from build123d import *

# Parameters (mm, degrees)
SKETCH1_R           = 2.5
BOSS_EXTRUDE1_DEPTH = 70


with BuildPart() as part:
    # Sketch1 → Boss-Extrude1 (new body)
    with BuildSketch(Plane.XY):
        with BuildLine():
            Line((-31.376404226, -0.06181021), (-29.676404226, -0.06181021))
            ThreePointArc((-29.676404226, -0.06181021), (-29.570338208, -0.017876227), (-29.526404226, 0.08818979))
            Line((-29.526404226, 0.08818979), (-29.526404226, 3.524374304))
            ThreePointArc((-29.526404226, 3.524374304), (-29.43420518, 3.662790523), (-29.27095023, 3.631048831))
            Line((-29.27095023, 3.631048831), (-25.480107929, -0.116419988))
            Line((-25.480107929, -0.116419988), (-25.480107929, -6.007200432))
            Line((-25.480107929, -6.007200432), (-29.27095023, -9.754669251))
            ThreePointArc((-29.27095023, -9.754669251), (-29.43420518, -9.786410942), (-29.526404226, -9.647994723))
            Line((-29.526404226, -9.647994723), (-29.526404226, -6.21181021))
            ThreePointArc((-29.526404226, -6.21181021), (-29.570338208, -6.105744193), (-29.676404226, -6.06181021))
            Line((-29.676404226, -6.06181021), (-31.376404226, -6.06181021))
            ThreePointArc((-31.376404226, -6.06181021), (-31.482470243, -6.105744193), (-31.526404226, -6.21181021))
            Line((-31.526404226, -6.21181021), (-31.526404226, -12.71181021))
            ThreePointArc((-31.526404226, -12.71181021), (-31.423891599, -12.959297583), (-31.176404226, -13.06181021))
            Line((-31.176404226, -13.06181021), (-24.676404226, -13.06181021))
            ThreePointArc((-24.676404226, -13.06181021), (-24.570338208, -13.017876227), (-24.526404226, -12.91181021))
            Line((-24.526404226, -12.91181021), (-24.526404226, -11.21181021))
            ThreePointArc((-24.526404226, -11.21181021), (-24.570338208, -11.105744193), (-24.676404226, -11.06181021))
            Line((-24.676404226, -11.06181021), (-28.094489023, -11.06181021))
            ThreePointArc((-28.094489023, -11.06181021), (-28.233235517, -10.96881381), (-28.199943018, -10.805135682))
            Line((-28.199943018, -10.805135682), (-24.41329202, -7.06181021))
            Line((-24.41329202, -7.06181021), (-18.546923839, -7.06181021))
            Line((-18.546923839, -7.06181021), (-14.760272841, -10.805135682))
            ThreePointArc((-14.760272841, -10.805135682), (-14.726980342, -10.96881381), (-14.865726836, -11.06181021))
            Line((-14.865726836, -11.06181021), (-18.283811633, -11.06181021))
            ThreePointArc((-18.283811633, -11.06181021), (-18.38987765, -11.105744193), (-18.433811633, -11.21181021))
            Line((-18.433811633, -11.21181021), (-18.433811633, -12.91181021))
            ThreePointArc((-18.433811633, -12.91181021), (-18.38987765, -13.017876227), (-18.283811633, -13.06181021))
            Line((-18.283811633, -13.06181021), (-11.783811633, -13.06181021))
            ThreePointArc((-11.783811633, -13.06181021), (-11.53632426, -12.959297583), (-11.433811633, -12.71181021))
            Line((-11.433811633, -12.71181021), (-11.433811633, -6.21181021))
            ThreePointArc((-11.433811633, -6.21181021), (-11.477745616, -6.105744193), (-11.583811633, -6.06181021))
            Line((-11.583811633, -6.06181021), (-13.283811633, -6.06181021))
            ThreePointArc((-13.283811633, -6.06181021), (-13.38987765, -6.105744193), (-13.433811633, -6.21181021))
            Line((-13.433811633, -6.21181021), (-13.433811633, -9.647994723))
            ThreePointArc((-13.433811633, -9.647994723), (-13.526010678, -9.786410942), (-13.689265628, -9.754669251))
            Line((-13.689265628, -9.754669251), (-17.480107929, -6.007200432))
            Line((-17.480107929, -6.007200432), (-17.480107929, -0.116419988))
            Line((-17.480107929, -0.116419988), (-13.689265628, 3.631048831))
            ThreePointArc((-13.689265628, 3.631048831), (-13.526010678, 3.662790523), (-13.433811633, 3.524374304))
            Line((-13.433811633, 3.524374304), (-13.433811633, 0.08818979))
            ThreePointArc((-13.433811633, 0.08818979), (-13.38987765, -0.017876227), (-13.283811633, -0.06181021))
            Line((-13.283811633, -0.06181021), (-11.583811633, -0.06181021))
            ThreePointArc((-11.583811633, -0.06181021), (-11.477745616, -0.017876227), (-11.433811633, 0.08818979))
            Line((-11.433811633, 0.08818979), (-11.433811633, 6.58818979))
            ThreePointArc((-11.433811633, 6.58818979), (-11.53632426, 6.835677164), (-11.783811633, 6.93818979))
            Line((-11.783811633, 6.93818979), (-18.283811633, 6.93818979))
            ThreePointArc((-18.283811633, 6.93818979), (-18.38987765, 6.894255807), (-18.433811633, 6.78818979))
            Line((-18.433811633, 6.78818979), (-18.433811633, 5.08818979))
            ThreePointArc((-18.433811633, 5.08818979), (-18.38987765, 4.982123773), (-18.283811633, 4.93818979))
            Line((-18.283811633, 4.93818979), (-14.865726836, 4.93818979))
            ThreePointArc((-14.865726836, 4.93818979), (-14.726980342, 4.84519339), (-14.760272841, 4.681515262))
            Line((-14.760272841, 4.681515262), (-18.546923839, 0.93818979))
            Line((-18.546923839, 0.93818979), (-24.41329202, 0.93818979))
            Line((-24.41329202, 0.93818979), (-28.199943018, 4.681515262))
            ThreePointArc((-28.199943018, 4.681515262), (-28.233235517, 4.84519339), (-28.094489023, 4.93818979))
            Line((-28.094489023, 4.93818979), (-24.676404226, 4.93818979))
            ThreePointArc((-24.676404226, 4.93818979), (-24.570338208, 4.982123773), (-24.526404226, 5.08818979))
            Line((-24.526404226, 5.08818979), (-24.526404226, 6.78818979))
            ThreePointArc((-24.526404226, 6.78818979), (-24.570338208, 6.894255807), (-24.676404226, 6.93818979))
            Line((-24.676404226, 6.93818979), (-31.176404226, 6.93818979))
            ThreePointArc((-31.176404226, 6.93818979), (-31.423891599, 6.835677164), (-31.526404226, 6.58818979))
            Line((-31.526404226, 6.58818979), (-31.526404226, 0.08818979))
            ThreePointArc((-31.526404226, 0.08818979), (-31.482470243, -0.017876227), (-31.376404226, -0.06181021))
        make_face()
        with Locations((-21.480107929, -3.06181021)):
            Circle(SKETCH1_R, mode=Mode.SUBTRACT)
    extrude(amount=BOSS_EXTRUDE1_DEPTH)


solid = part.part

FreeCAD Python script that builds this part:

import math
import FreeCAD as App
import Part
import Sketcher

doc = App.newDocument("Part")
body = doc.addObject("PartDesign::Body", "Body")

# Sketch on XY plane
sketch1 = doc.addObject("Sketcher::SketchObject", "Sketch")
body.addObject(sketch1)
sketch1.AttachmentSupport = (doc.XY_Plane, [""])
sketch1.MapMode = "FlatFace"
sketch1.addGeometry(Part.LineSegment(App.Vector(-31.38, -0.06, 0), App.Vector(-29.68, -0.06, 0)), False)
sketch1.addGeometry(Part.ArcOfCircle(Part.Circle(App.Vector(-29.68, 0.09, 0), App.Vector(0, 0, 1), 0.15), math.radians(-90), math.radians(0)), False)
sketch1.addGeometry(Part.LineSegment(App.Vector(-29.53, 0.09, 0), App.Vector(-29.53, 3.52, 0)), False)
sketch1.addGeometry(Part.ArcOfCircle(Part.Circle(App.Vector(-29.38, 3.52, 0), App.Vector(0, 0, 1), 0.15), math.radians(45), math.radians(180)), False)
sketch1.addGeometry(Part.LineSegment(App.Vector(-29.27, 3.63, 0), App.Vector(-25.48, -0.12, 0)), False)
sketch1.addGeometry(Part.LineSegment(App.Vector(-25.48, -0.12, 0), App.Vector(-25.48, -6.01, 0)), False)
sketch1.addGeometry(Part.LineSegment(App.Vector(-25.48, -6.01, 0), App.Vector(-29.27, -9.75, 0)), False)
sketch1.addGeometry(Part.ArcOfCircle(Part.Circle(App.Vector(-29.38, -9.65, 0), App.Vector(0, 0, 1), 0.15), math.radians(-180), math.radians(-45)), False)
sketch1.addGeometry(Part.LineSegment(App.Vector(-29.53, -9.65, 0), App.Vector(-29.53, -6.21, 0)), False)
sketch1.addGeometry(Part.ArcOfCircle(Part.Circle(App.Vector(-29.68, -6.21, 0), App.Vector(0, 0, 1), 0.15), math.radians(0), math.radians(90)), False)
sketch1.addGeometry(Part.LineSegment(App.Vector(-29.68, -6.06, 0), App.Vector(-31.38, -6.06, 0)), False)
sketch1.addGeometry(Part.ArcOfCircle(Part.Circle(App.Vector(-31.38, -6.21, 0), App.Vector(0, 0, 1), 0.15), math.radians(90), math.radians(180)), False)
sketch1.addGeometry(Part.LineSegment(App.Vector(-31.53, -6.21, 0), App.Vector(-31.53, -12.71, 0)), False)
sketch1.addGeometry(Part.ArcOfCircle(Part.Circle(App.Vector(-31.18, -12.71, 0), App.Vector(0, 0, 1), 0.35), math.radians(-180), math.radians(-90)), False)
sketch1.addGeometry(Part.LineSegment(App.Vector(-31.18, -13.06, 0), App.Vector(-24.68, -13.06, 0)), False)
sketch1.addGeometry(Part.ArcOfCircle(Part.Circle(App.Vector(-24.68, -12.91, 0), App.Vector(0, 0, 1), 0.15), math.radians(-90), math.radians(0)), False)
sketch1.addGeometry(Part.LineSegment(App.Vector(-24.53, -12.91, 0), App.Vector(-24.53, -11.21, 0)), False)
sketch1.addGeometry(Part.ArcOfCircle(Part.Circle(App.Vector(-24.68, -11.21, 0), App.Vector(0, 0, 1), 0.15), math.radians(0), math.radians(90)), False)
sketch1.addGeometry(Part.LineSegment(App.Vector(-24.68, -11.06, 0), App.Vector(-28.09, -11.06, 0)), False)
sketch1.addGeometry(Part.ArcOfCircle(Part.Circle(App.Vector(-28.09, -10.91, 0), App.Vector(0, 0, 1), 0.15), math.radians(135), math.radians(270)), False)
sketch1.addGeometry(Part.LineSegment(App.Vector(-28.2, -10.81, 0), App.Vector(-24.41, -7.06, 0)), False)
sketch1.addGeometry(Part.LineSegment(App.Vector(-24.41, -7.06, 0), App.Vector(-18.55, -7.06, 0)), False)
sketch1.addGeometry(Part.LineSegment(App.Vector(-18.55, -7.06, 0), App.Vector(-14.76, -10.81, 0)), False)
sketch1.addGeometry(Part.ArcOfCircle(Part.Circle(App.Vector(-14.87, -10.91, 0), App.Vector(0, 0, 1), 0.15), math.radians(-90), math.radians(45)), False)
sketch1.addGeometry(Part.LineSegment(App.Vector(-14.87, -11.06, 0), App.Vector(-18.28, -11.06, 0)), False)
sketch1.addGeometry(Part.ArcOfCircle(Part.Circle(App.Vector(-18.28, -11.21, 0), App.Vector(0, 0, 1), 0.15), math.radians(90), math.radians(180)), False)
sketch1.addGeometry(Part.LineSegment(App.Vector(-18.43, -11.21, 0), App.Vector(-18.43, -12.91, 0)), False)
sketch1.addGeometry(Part.ArcOfCircle(Part.Circle(App.Vector(-18.28, -12.91, 0), App.Vector(0, 0, 1), 0.15), math.radians(-180), math.radians(-90)), False)
sketch1.addGeometry(Part.LineSegment(App.Vector(-18.28, -13.06, 0), App.Vector(-11.78, -13.06, 0)), False)
sketch1.addGeometry(Part.ArcOfCircle(Part.Circle(App.Vector(-11.78, -12.71, 0), App.Vector(0, 0, 1), 0.35), math.radians(-90), math.radians(0)), False)
sketch1.addGeometry(Part.LineSegment(App.Vector(-11.43, -12.71, 0), App.Vector(-11.43, -6.21, 0)), False)
sketch1.addGeometry(Part.ArcOfCircle(Part.Circle(App.Vector(-11.58, -6.21, 0), App.Vector(0, 0, 1), 0.15), math.radians(0), math.radians(90)), False)
sketch1.addGeometry(Part.LineSegment(App.Vector(-11.58, -6.06, 0), App.Vector(-13.28, -6.06, 0)), False)
sketch1.addGeometry(Part.ArcOfCircle(Part.Circle(App.Vector(-13.28, -6.21, 0), App.Vector(0, 0, 1), 0.15), math.radians(90), math.radians(180)), False)
sketch1.addGeometry(Part.LineSegment(App.Vector(-13.43, -6.21, 0), App.Vector(-13.43, -9.65, 0)), False)
sketch1.addGeometry(Part.ArcOfCircle(Part.Circle(App.Vector(-13.58, -9.65, 0), App.Vector(0, 0, 1), 0.15), math.radians(-135), math.radians(0)), False)
sketch1.addGeometry(Part.LineSegment(App.Vector(-13.69, -9.75, 0), App.Vector(-17.48, -6.01, 0)), False)
sketch1.addGeometry(Part.LineSegment(App.Vector(-17.48, -6.01, 0), App.Vector(-17.48, -0.12, 0)), False)
sketch1.addGeometry(Part.LineSegment(App.Vector(-17.48, -0.12, 0), App.Vector(-13.69, 3.63, 0)), False)
sketch1.addGeometry(Part.ArcOfCircle(Part.Circle(App.Vector(-13.58, 3.52, 0), App.Vector(0, 0, 1), 0.15), math.radians(0), math.radians(135)), False)
sketch1.addGeometry(Part.LineSegment(App.Vector(-13.43, 3.52, 0), App.Vector(-13.43, 0.09, 0)), False)
sketch1.addGeometry(Part.ArcOfCircle(Part.Circle(App.Vector(-13.28, 0.09, 0), App.Vector(0, 0, 1), 0.15), math.radians(-180), math.radians(-90)), False)
sketch1.addGeometry(Part.LineSegment(App.Vector(-13.28, -0.06, 0), App.Vector(-11.58, -0.06, 0)), False)
sketch1.addGeometry(Part.ArcOfCircle(Part.Circle(App.Vector(-11.58, 0.09, 0), App.Vector(0, 0, 1), 0.15), math.radians(-90), math.radians(0)), False)
sketch1.addGeometry(Part.LineSegment(App.Vector(-11.43, 0.09, 0), App.Vector(-11.43, 6.59, 0)), False)
sketch1.addGeometry(Part.ArcOfCircle(Part.Circle(App.Vector(-11.78, 6.59, 0), App.Vector(0, 0, 1), 0.35), math.radians(0), math.radians(90)), False)
sketch1.addGeometry(Part.LineSegment(App.Vector(-11.78, 6.94, 0), App.Vector(-18.28, 6.94, 0)), False)
sketch1.addGeometry(Part.ArcOfCircle(Part.Circle(App.Vector(-18.28, 6.79, 0), App.Vector(0, 0, 1), 0.15), math.radians(90), math.radians(180)), False)
sketch1.addGeometry(Part.LineSegment(App.Vector(-18.43, 6.79, 0), App.Vector(-18.43, 5.09, 0)), False)
sketch1.addGeometry(Part.ArcOfCircle(Part.Circle(App.Vector(-18.28, 5.09, 0), App.Vector(0, 0, 1), 0.15), math.radians(-180), math.radians(-90)), False)
sketch1.addGeometry(Part.LineSegment(App.Vector(-18.28, 4.94, 0), App.Vector(-14.87, 4.94, 0)), False)
sketch1.addGeometry(Part.ArcOfCircle(Part.Circle(App.Vector(-14.87, 4.79, 0), App.Vector(0, 0, 1), 0.15), math.radians(-45), math.radians(90)), False)
sketch1.addGeometry(Part.LineSegment(App.Vector(-14.76, 4.68, 0), App.Vector(-18.55, 0.94, 0)), False)
sketch1.addGeometry(Part.LineSegment(App.Vector(-18.55, 0.94, 0), App.Vector(-24.41, 0.94, 0)), False)
sketch1.addGeometry(Part.LineSegment(App.Vector(-24.41, 0.94, 0), App.Vector(-28.2, 4.68, 0)), False)
sketch1.addGeometry(Part.ArcOfCircle(Part.Circle(App.Vector(-28.09, 4.79, 0), App.Vector(0, 0, 1), 0.15), math.radians(90), math.radians(225)), False)
sketch1.addGeometry(Part.LineSegment(App.Vector(-28.09, 4.94, 0), App.Vector(-24.68, 4.94, 0)), False)
sketch1.addGeometry(Part.ArcOfCircle(Part.Circle(App.Vector(-24.68, 5.09, 0), App.Vector(0, 0, 1), 0.15), math.radians(-90), math.radians(0)), False)
sketch1.addGeometry(Part.LineSegment(App.Vector(-24.53, 5.09, 0), App.Vector(-24.53, 6.79, 0)), False)
sketch1.addGeometry(Part.ArcOfCircle(Part.Circle(App.Vector(-24.68, 6.79, 0), App.Vector(0, 0, 1), 0.15), math.radians(0), math.radians(90)), False)
sketch1.addGeometry(Part.LineSegment(App.Vector(-24.68, 6.94, 0), App.Vector(-31.18, 6.94, 0)), False)
sketch1.addGeometry(Part.ArcOfCircle(Part.Circle(App.Vector(-31.18, 6.59, 0), App.Vector(0, 0, 1), 0.35), math.radians(90), math.radians(180)), False)
sketch1.addGeometry(Part.LineSegment(App.Vector(-31.53, 6.59, 0), App.Vector(-31.53, 0.09, 0)), False)
sketch1.addGeometry(Part.ArcOfCircle(Part.Circle(App.Vector(-31.38, 0.09, 0), App.Vector(0, 0, 1), 0.15), math.radians(-180), math.radians(-90)), False)
sketch1.addGeometry(Part.Circle(App.Vector(-21.48, -3.06, 0), App.Vector(0, 0, 1), 2.5), False)
sketch1.addConstraint(Sketcher.Constraint("Tangent", 0, 2, 1, 1))
sketch1.addConstraint(Sketcher.Constraint("Tangent", 1, 2, 2, 1))
sketch1.addConstraint(Sketcher.Constraint("Tangent", 2, 2, 3, 2))
sketch1.addConstraint(Sketcher.Constraint("Tangent", 3, 1, 4, 1))
sketch1.addConstraint(Sketcher.Constraint("Coincident", 4, 2, 5, 1))
sketch1.addConstraint(Sketcher.Constraint("Coincident", 5, 2, 6, 1))
sketch1.addConstraint(Sketcher.Constraint("Tangent", 6, 2, 7, 2))
sketch1.addConstraint(Sketcher.Constraint("Tangent", 7, 1, 8, 1))
sketch1.addConstraint(Sketcher.Constraint("Tangent", 8, 2, 9, 1))
sketch1.addConstraint(Sketcher.Constraint("Tangent", 9, 2, 10, 1))
sketch1.addConstraint(Sketcher.Constraint("Tangent", 10, 2, 11, 1))
sketch1.addConstraint(Sketcher.Constraint("Tangent", 11, 2, 12, 1))
sketch1.addConstraint(Sketcher.Constraint("Tangent", 12, 2, 13, 1))
sketch1.addConstraint(Sketcher.Constraint("Tangent", 13, 2, 14, 1))
sketch1.addConstraint(Sketcher.Constraint("Tangent", 14, 2, 15, 1))
sketch1.addConstraint(Sketcher.Constraint("Tangent", 15, 2, 16, 1))
sketch1.addConstraint(Sketcher.Constraint("Tangent", 16, 2, 17, 1))
sketch1.addConstraint(Sketcher.Constraint("Tangent", 17, 2, 18, 1))
sketch1.addConstraint(Sketcher.Constraint("Tangent", 18, 2, 19, 2))
sketch1.addConstraint(Sketcher.Constraint("Tangent", 19, 1, 20, 1))
sketch1.addConstraint(Sketcher.Constraint("Coincident", 20, 2, 21, 1))
sketch1.addConstraint(Sketcher.Constraint("Coincident", 21, 2, 22, 1))
sketch1.addConstraint(Sketcher.Constraint("Tangent", 22, 2, 23, 2))
sketch1.addConstraint(Sketcher.Constraint("Tangent", 23, 1, 24, 1))
sketch1.addConstraint(Sketcher.Constraint("Tangent", 24, 2, 25, 1))
sketch1.addConstraint(Sketcher.Constraint("Tangent", 25, 2, 26, 1))
sketch1.addConstraint(Sketcher.Constraint("Tangent", 26, 2, 27, 1))
sketch1.addConstraint(Sketcher.Constraint("Tangent", 27, 2, 28, 1))
sketch1.addConstraint(Sketcher.Constraint("Tangent", 28, 2, 29, 1))
sketch1.addConstraint(Sketcher.Constraint("Tangent", 29, 2, 30, 1))
sketch1.addConstraint(Sketcher.Constraint("Tangent", 30, 2, 31, 1))
sketch1.addConstraint(Sketcher.Constraint("Tangent", 31, 2, 32, 1))
sketch1.addConstraint(Sketcher.Constraint("Tangent", 32, 2, 33, 1))
sketch1.addConstraint(Sketcher.Constraint("Tangent", 33, 2, 34, 1))
sketch1.addConstraint(Sketcher.Constraint("Tangent", 34, 2, 35, 2))
sketch1.addConstraint(Sketcher.Constraint("Tangent", 35, 1, 36, 1))
sketch1.addConstraint(Sketcher.Constraint("Coincident", 36, 2, 37, 1))
sketch1.addConstraint(Sketcher.Constraint("Coincident", 37, 2, 38, 1))
sketch1.addConstraint(Sketcher.Constraint("Tangent", 38, 2, 39, 2))
sketch1.addConstraint(Sketcher.Constraint("Tangent", 39, 1, 40, 1))
sketch1.addConstraint(Sketcher.Constraint("Tangent", 40, 2, 41, 1))
sketch1.addConstraint(Sketcher.Constraint("Tangent", 41, 2, 42, 1))
sketch1.addConstraint(Sketcher.Constraint("Tangent", 42, 2, 43, 1))
sketch1.addConstraint(Sketcher.Constraint("Tangent", 43, 2, 44, 1))
sketch1.addConstraint(Sketcher.Constraint("Tangent", 44, 2, 45, 1))
sketch1.addConstraint(Sketcher.Constraint("Tangent", 45, 2, 46, 1))
sketch1.addConstraint(Sketcher.Constraint("Tangent", 46, 2, 47, 1))
sketch1.addConstraint(Sketcher.Constraint("Tangent", 47, 2, 48, 1))
sketch1.addConstraint(Sketcher.Constraint("Tangent", 48, 2, 49, 1))
sketch1.addConstraint(Sketcher.Constraint("Tangent", 49, 2, 50, 1))
sketch1.addConstraint(Sketcher.Constraint("Tangent", 50, 2, 51, 2))
sketch1.addConstraint(Sketcher.Constraint("Tangent", 51, 1, 52, 1))
sketch1.addConstraint(Sketcher.Constraint("Coincident", 52, 2, 53, 1))
sketch1.addConstraint(Sketcher.Constraint("Coincident", 53, 2, 54, 1))
sketch1.addConstraint(Sketcher.Constraint("Tangent", 54, 2, 55, 2))
sketch1.addConstraint(Sketcher.Constraint("Tangent", 55, 1, 56, 1))
sketch1.addConstraint(Sketcher.Constraint("Tangent", 56, 2, 57, 1))
sketch1.addConstraint(Sketcher.Constraint("Tangent", 57, 2, 58, 1))
sketch1.addConstraint(Sketcher.Constraint("Tangent", 58, 2, 59, 1))
sketch1.addConstraint(Sketcher.Constraint("Tangent", 59, 2, 60, 1))
sketch1.addConstraint(Sketcher.Constraint("Tangent", 60, 2, 61, 1))
sketch1.addConstraint(Sketcher.Constraint("Tangent", 61, 2, 62, 1))
sketch1.addConstraint(Sketcher.Constraint("Tangent", 62, 2, 63, 1))
sketch1.addConstraint(Sketcher.Constraint("Tangent", 63, 2, 0, 1))
sketch1.addConstraint(Sketcher.Constraint("Horizontal", 0))
sketch1.addConstraint(Sketcher.Constraint("Vertical", 2))
sketch1.addConstraint(Sketcher.Constraint("Vertical", 5))
sketch1.addConstraint(Sketcher.Constraint("Vertical", 8))
sketch1.addConstraint(Sketcher.Constraint("Horizontal", 10))
sketch1.addConstraint(Sketcher.Constraint("Vertical", 12))
sketch1.addConstraint(Sketcher.Constraint("Horizontal", 14))
sketch1.addConstraint(Sketcher.Constraint("Vertical", 16))
sketch1.addConstraint(Sketcher.Constraint("Horizontal", 18))
sketch1.addConstraint(Sketcher.Constraint("Horizontal", 21))
sketch1.addConstraint(Sketcher.Constraint("Horizontal", 24))
sketch1.addConstraint(Sketcher.Constraint("Vertical", 26))
sketch1.addConstraint(Sketcher.Constraint("Horizontal", 28))
sketch1.addConstraint(Sketcher.Constraint("Vertical", 30))
sketch1.addConstraint(Sketcher.Constraint("Horizontal", 32))
sketch1.addConstraint(Sketcher.Constraint("Vertical", 34))
sketch1.addConstraint(Sketcher.Constraint("Vertical", 37))
sketch1.addConstraint(Sketcher.Constraint("Vertical", 40))
sketch1.addConstraint(Sketcher.Constraint("Horizontal", 42))
sketch1.addConstraint(Sketcher.Constraint("Vertical", 44))
sketch1.addConstraint(Sketcher.Constraint("Horizontal", 46))
sketch1.addConstraint(Sketcher.Constraint("Vertical", 48))
sketch1.addConstraint(Sketcher.Constraint("Horizontal", 50))
sketch1.addConstraint(Sketcher.Constraint("Horizontal", 53))
sketch1.addConstraint(Sketcher.Constraint("Horizontal", 56))
sketch1.addConstraint(Sketcher.Constraint("Vertical", 58))
sketch1.addConstraint(Sketcher.Constraint("Horizontal", 60))
sketch1.addConstraint(Sketcher.Constraint("Vertical", 62))
sketch1.addConstraint(Sketcher.Constraint("Equal", 1, 3))
sketch1.addConstraint(Sketcher.Constraint("Equal", 3, 7))
sketch1.addConstraint(Sketcher.Constraint("Equal", 7, 9))
sketch1.addConstraint(Sketcher.Constraint("Equal", 9, 11))
sketch1.addConstraint(Sketcher.Constraint("Equal", 11, 15))
sketch1.addConstraint(Sketcher.Constraint("Equal", 15, 17))
sketch1.addConstraint(Sketcher.Constraint("Equal", 17, 19))
sketch1.addConstraint(Sketcher.Constraint("Equal", 19, 23))
sketch1.addConstraint(Sketcher.Constraint("Equal", 23, 25))
sketch1.addConstraint(Sketcher.Constraint("Equal", 25, 27))
sketch1.addConstraint(Sketcher.Constraint("Equal", 13, 29))
sketch1.addConstraint(Sketcher.Constraint("Equal", 27, 31))
sketch1.addConstraint(Sketcher.Constraint("Equal", 31, 33))
sketch1.addConstraint(Sketcher.Constraint("Equal", 33, 35))
sketch1.addConstraint(Sketcher.Constraint("Equal", 35, 39))
sketch1.addConstraint(Sketcher.Constraint("Equal", 39, 41))
sketch1.addConstraint(Sketcher.Constraint("Equal", 41, 43))
sketch1.addConstraint(Sketcher.Constraint("Equal", 29, 45))
sketch1.addConstraint(Sketcher.Constraint("Equal", 43, 47))
sketch1.addConstraint(Sketcher.Constraint("Equal", 47, 49))
sketch1.addConstraint(Sketcher.Constraint("Equal", 49, 51))
sketch1.addConstraint(Sketcher.Constraint("Equal", 51, 55))
sketch1.addConstraint(Sketcher.Constraint("Equal", 55, 57))
sketch1.addConstraint(Sketcher.Constraint("Equal", 57, 59))
sketch1.addConstraint(Sketcher.Constraint("Equal", 45, 61))
sketch1.addConstraint(Sketcher.Constraint("Equal", 59, 63))
sketch1.addConstraint(Sketcher.Constraint("Parallel", 6, 20))
sketch1.addConstraint(Sketcher.Constraint("Parallel", 4, 22))
sketch1.addConstraint(Sketcher.Constraint("Parallel", 22, 36))
sketch1.addConstraint(Sketcher.Constraint("Parallel", 20, 38))
sketch1.addConstraint(Sketcher.Constraint("Parallel", 38, 52))
sketch1.addConstraint(Sketcher.Constraint("Parallel", 36, 54))
sketch1.addConstraint(Sketcher.Constraint("Horizontal", 19, 3, 23, 3))
sketch1.addConstraint(Sketcher.Constraint("Horizontal", 15, 3, 27, 3))
sketch1.addConstraint(Sketcher.Constraint("Horizontal", 11, 3, 31, 3))
sketch1.addConstraint(Sketcher.Constraint("Horizontal", 7, 3, 35, 3))
sketch1.addConstraint(Sketcher.Constraint("Horizontal", 3, 3, 39, 3))
sketch1.addConstraint(Sketcher.Constraint("Horizontal", 1, 3, 41, 3))
sketch1.addConstraint(Sketcher.Constraint("Horizontal", 51, 3, 55, 3))
sketch1.addConstraint(Sketcher.Constraint("Horizontal", 47, 3, 59, 3))
sketch1.addConstraint(Sketcher.Constraint("Horizontal", 19, 1, 22, 2))
sketch1.addConstraint(Sketcher.Constraint("Horizontal", 5, 2, 36, 2))
sketch1.addConstraint(Sketcher.Constraint("Horizontal", 4, 2, 37, 2))
sketch1.addConstraint(Sketcher.Constraint("Vertical", 3, 3, 7, 3))
sketch1.addConstraint(Sketcher.Constraint("Vertical", 31, 3, 43, 3))
sketch1.addConstraint(Sketcher.Constraint("Vertical", 27, 3, 47, 3))
sketch1.addConstraint(Sketcher.Constraint("Vertical", 23, 3, 51, 3))
sketch1.addConstraint(Sketcher.Constraint("Vertical", 19, 3, 55, 3))
sketch1.addConstraint(Sketcher.Constraint("Vertical", 17, 3, 57, 3))
sketch1.addConstraint(Sketcher.Constraint("Vertical", 13, 3, 61, 3))
sketch1.addConstraint(Sketcher.Constraint("Vertical", 21, 2, 52, 2))
sketch1.addConstraint(Sketcher.Constraint("Equal", 18, 24))
sketch1.addConstraint(Sketcher.Constraint("Equal", 14, 28))
sketch1.addConstraint(Sketcher.Constraint("Equal", 10, 32))
sketch1.addConstraint(Sketcher.Constraint("Equal", 2, 8))
sketch1.addConstraint(Sketcher.Constraint("Equal", 60, 12))
sketch1.addConstraint(Sketcher.Constraint("Equal", 42, 16))
sketch1.addConstraint(Sketcher.Constraint("Equal", 30, 44))
sketch1.addConstraint(Sketcher.Constraint("Equal", 26, 48))
sketch1.addConstraint(Sketcher.Constraint("Diameter", 64, 5.0))
sketch1.addConstraint(Sketcher.Constraint("Radius", 1, 0.15))
sketch1.addConstraint(Sketcher.Constraint("Radius", 13, 0.35))
sketch1.addConstraint(Sketcher.Constraint("DistanceX", 0, 1, 0, 2, 1.7))
sketch1.addConstraint(Sketcher.Constraint("DistanceX", 14, 1, 14, 2, 6.5))
sketch1.addConstraint(Sketcher.Constraint("DistanceX", 21, 1, 21, 2, 5.866368))
sketch1.addConstraint(Sketcher.Constraint("DistanceY", 5, 2, 5, 1, 5.89078))
sketch1.addConstraint(Sketcher.Constraint("DistanceY", 5, 2, -1, 1, 6.0072))
sketch1.addConstraint(Sketcher.Constraint("Distance", 4, 5.330479))
sketch1.addConstraint(Sketcher.Constraint("DistanceX", 18, 2, 18, 1, 3.418085))
sketch1.addConstraint(Sketcher.Constraint("DistanceY", 2, 1, 2, 2, 3.436185))
sketch1.addConstraint(Sketcher.Constraint("DistanceY", -1, 1, 1, 3, 0.08819))
sketch1.addConstraint(Sketcher.Constraint("DistanceX", 19, 3, -1, 1, 28.094489))
sketch1.addConstraint(Sketcher.Constraint("DistanceX", 25, 3, -1, 1, 18.283812))
sketch1.addConstraint(Sketcher.Constraint("DistanceY", 64, 3, -1, 1, 3.06181))
sketch1.addConstraint(Sketcher.Constraint("DistanceX", 64, 3, -1, 1, 21.480108))
pad1 = doc.addObject("PartDesign::Pad", "Pad")
body.addObject(pad1)
pad1.Profile = sketch1
pad1.Length = 70

doc.recompute()
